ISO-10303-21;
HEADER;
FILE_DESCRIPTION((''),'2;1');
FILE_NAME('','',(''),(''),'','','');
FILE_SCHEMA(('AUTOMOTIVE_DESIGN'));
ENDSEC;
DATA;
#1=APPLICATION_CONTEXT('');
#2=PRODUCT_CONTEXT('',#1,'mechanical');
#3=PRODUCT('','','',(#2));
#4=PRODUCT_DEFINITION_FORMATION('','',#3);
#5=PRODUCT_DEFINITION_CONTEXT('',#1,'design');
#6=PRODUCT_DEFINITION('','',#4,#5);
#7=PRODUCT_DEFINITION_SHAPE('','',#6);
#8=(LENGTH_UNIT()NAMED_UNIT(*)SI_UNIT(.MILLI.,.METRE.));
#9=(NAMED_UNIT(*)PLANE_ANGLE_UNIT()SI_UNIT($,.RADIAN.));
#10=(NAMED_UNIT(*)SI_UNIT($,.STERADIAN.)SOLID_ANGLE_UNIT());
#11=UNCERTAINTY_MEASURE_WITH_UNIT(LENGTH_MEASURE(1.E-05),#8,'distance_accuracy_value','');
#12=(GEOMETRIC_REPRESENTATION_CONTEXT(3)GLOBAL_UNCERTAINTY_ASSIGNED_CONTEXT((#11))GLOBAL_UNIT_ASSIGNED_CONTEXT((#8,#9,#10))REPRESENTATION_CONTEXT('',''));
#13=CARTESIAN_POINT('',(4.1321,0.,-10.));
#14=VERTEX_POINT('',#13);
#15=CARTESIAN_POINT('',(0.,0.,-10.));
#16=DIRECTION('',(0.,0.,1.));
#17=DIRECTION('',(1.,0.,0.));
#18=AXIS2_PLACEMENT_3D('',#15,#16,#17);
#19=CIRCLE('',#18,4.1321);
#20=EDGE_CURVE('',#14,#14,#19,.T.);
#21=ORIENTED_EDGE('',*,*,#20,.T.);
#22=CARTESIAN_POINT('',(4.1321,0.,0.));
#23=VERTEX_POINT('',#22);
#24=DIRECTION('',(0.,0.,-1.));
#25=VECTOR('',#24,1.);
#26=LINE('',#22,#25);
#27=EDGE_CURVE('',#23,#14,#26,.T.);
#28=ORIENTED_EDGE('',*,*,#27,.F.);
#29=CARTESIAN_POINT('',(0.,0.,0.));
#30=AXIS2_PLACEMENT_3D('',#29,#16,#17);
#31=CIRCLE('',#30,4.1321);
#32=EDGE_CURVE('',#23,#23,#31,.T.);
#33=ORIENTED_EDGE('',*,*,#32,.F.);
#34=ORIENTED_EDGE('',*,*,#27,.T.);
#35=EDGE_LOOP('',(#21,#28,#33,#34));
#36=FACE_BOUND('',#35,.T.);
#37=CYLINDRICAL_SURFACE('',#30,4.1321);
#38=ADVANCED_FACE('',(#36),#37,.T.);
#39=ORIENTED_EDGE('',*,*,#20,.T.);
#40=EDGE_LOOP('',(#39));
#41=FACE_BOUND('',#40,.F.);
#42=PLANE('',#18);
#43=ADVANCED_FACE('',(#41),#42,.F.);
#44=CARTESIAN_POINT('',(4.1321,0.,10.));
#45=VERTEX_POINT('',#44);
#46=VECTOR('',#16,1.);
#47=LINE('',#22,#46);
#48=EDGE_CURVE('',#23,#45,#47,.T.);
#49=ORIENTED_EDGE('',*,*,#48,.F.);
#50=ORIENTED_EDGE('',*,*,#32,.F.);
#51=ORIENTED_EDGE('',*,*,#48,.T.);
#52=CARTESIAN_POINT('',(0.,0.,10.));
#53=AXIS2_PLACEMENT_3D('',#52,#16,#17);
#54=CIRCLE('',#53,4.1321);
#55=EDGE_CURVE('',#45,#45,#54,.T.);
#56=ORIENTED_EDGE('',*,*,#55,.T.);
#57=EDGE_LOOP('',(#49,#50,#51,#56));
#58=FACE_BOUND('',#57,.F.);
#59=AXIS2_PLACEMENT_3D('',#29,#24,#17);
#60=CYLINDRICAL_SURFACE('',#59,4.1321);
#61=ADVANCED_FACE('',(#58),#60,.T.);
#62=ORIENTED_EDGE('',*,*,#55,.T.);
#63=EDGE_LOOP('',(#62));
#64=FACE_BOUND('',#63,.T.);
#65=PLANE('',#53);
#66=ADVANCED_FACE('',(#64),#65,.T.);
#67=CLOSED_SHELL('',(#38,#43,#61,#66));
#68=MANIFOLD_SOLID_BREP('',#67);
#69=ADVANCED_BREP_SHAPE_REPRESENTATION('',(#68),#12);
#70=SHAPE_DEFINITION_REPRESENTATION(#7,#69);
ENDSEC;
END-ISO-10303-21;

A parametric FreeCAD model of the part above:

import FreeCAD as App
import Part
import Sketcher

V = App.Vector

doc = App.newDocument("Part")
body = doc.addObject("PartDesign::Body", "Body")

# Sketch on XY plane
sketch1 = doc.addObject("Sketcher::SketchObject", "Sketch")
body.addObject(sketch1)
sketch1.AttachmentSupport = (doc.XY_Plane, [""])
sketch1.MapMode = "FlatFace"
sketch1.addGeometry(Part.Circle(V(0, 0, 0), V(0, 0, 1), 4.1), False)
sketch1.addConstraint(Sketcher.Constraint("Coincident", 0, 3, -1, 1))
sketch1.addConstraint(Sketcher.Constraint("Diameter", 0, 8.2642))
pad1 = doc.addObject("PartDesign::Pad", "Pad")
body.addObject(pad1)
pad1.Profile = sketch1
pad1.Length = 20
pad1.Midplane = True

doc.recompute()
